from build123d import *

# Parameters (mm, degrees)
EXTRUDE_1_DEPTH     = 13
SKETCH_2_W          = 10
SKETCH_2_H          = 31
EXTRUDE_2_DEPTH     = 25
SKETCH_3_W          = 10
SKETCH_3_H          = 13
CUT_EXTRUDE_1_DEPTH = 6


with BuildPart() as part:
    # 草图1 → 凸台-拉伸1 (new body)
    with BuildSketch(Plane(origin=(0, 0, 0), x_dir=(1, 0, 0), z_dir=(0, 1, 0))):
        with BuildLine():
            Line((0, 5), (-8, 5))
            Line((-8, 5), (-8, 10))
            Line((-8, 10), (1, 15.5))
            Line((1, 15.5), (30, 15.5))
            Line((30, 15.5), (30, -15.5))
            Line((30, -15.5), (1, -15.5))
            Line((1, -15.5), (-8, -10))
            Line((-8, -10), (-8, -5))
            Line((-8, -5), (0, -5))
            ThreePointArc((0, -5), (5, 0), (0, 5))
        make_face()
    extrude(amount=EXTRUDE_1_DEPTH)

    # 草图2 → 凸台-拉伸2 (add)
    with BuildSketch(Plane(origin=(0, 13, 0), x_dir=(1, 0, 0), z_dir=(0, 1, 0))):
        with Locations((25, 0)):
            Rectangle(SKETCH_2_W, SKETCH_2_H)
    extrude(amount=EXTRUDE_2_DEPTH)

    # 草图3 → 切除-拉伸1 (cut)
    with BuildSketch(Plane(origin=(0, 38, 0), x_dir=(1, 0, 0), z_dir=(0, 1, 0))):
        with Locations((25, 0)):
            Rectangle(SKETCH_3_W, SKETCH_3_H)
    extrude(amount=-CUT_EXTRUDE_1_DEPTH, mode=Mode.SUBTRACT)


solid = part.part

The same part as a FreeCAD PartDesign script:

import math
import FreeCAD as App
import Part
import Sketcher
Q = App.Units.Quantity

doc = App.newDocument("Part")
body = doc.addObject("PartDesign::Body", "Body")

sketch1 = body.newObject("Sketcher::SketchObject", "Sketch")
sketch1.AttachmentSupport = (doc.getObject("XZ_Plane"), [""])
sketch1.MapMode = "FlatFace"
sketch1.addGeometry([
    Part.LineSegment(App.Vector(-8, -5, 0), App.Vector(0, -5, 0)),
    Part.ArcOfCircle(Part.Circle(App.Vector(0, 0, 0), App.Vector(0, 0, 1), 5), math.radians(-90), math.radians(90)),
    Part.LineSegment(App.Vector(0, 5, 0), App.Vector(-8, 5, 0)),
    Part.LineSegment(App.Vector(-8, 5, 0), App.Vector(-8, 10, 0)),
    Part.LineSegment(App.Vector(-8, 10, 0), App.Vector(1, 15.5, 0)),
    Part.LineSegment(App.Vector(1, 15.5, 0), App.Vector(30, 15.5, 0)),
    Part.LineSegment(App.Vector(30, 15.5, 0), App.Vector(30, -15.5, 0)),
    Part.LineSegment(App.Vector(30, -15.5, 0), App.Vector(1, -15.5, 0)),
    Part.LineSegment(App.Vector(1, -15.5, 0), App.Vector(-8, -10, 0)),
    Part.LineSegment(App.Vector(-8, -10, 0), App.Vector(-8, -5, 0)),
], False)
sketch1.addConstraint([
    Sketcher.Constraint("Tangent", 0, 2, 1, 1),
    Sketcher.Constraint("Tangent", 1, 2, 2, 1),
    Sketcher.Constraint("Coincident", 2, 2, 3, 1),
    Sketcher.Constraint("Coincident", 3, 2, 4, 1),
    Sketcher.Constraint("Coincident", 4, 2, 5, 1),
    Sketcher.Constraint("Coincident", 5, 2, 6, 1),
    Sketcher.Constraint("Coincident", 6, 2, 7, 1),
    Sketcher.Constraint("Coincident", 7, 2, 8, 1),
    Sketcher.Constraint("Coincident", 8, 2, 9, 1),
    Sketcher.Constraint("Coincident", 9, 2, 0, 1),
    Sketcher.Constraint("Horizontal", 0),
    Sketcher.Constraint("Horizontal", 2),
    Sketcher.Constraint("Vertical", 3),
    Sketcher.Constraint("Horizontal", 5),
    Sketcher.Constraint("Vertical", 6),
    Sketcher.Constraint("Horizontal", 7),
    Sketcher.Constraint("Vertical", 9),
    Sketcher.Constraint("Coincident", 1, 3, -1, 1),
    Sketcher.Constraint("Symmetric", 4, 2, 7, 2, -1),
    Sketcher.Constraint("Symmetric", 3, 2, 8, 2, -1),
    Sketcher.Constraint("Radius", 1, Q("5 mm")),
    Sketcher.Constraint("DistanceX", 0, 1, 0, 2, Q("8 mm")),
    Sketcher.Constraint("DistanceX", 5, 1, 5, 2, Q("29 mm")),
    Sketcher.Constraint("DistanceY", 3, 1, 3, 2, Q("5 mm")),
    Sketcher.Constraint("DistanceY", 6, 2, 6, 1, Q("31 mm")),
    Sketcher.Constraint("DistanceX", -1, 1, 4, 2, Q("1 mm")),
])
pad1 = body.newObject("PartDesign::Pad", "Pad")
pad1.Profile = sketch1
pad1.Length = 13
pad1.Reversed = True

sketch2 = body.newObject("Sketcher::SketchObject", "Sketch001")
sketch2.AttachmentSupport = (doc.getObject("XZ_Plane"), [""])
sketch2.MapMode = "FlatFace"
sketch2.AttachmentOffset = App.Placement(App.Vector(0, 0, -13), App.Rotation())
sketch2.addGeometry([
    Part.LineSegment(App.Vector(20, -15.5, 0), App.Vector(20, 15.5, 0)),
    Part.LineSegment(App.Vector(20, 15.5, 0), App.Vector(30, 15.5, 0)),
    Part.LineSegment(App.Vector(30, 15.5, 0), App.Vector(30, -15.5, 0)),
    Part.LineSegment(App.Vector(30, -15.5, 0), App.Vector(20, -15.5, 0)),
], False)
sketch2.addConstraint([
    Sketcher.Constraint("Coincident", 0, 2, 1, 1),
    Sketcher.Constraint("Coincident", 1, 2, 2, 1),
    Sketcher.Constraint("Coincident", 2, 2, 3, 1),
    Sketcher.Constraint("Coincident", 3, 2, 0, 1),
    Sketcher.Constraint("Vertical", 0),
    Sketcher.Constraint("Horizontal", 1),
    Sketcher.Constraint("Vertical", 2),
    Sketcher.Constraint("Horizontal", 3),
    Sketcher.Constraint("DistanceX", 1, 1, 1, 2, Q("10 mm")),
    Sketcher.Constraint("DistanceY", 0, 1, 0, 2, Q("31 mm")),
    Sketcher.Constraint("DistanceX", -1, 1, 0, 2, Q("20 mm")),
    Sketcher.Constraint("DistanceY", -1, 1, 0, 2, Q("15.5 mm")),
])
pad2 = body.newObject("PartDesign::Pad", "Pad001")
pad2.Profile = sketch2
pad2.Length = 25
pad2.Reversed = True

sketch3 = body.newObject("Sketcher::SketchObject", "Sketch002")
sketch3.AttachmentSupport = (doc.getObject("XZ_Plane"), [""])
sketch3.MapMode = "FlatFace"
sketch3.AttachmentOffset = App.Placement(App.Vector(0, 0, -38), App.Rotation())
sketch3.addGeometry([
    Part.LineSegment(App.Vector(20, -6.5, 0), App.Vector(20, 6.5, 0)),
    Part.LineSegment(App.Vector(20, 6.5, 0), App.Vector(30, 6.5, 0)),
    Part.LineSegment(App.Vector(30, 6.5, 0), App.Vector(30, -6.5, 0)),
    Part.LineSegment(App.Vector(30, -6.5, 0), App.Vector(20, -6.5, 0)),
], False)
sketch3.addConstraint([
    Sketcher.Constraint("Coincident", 0, 2, 1, 1),
    Sketcher.Constraint("Coincident", 1, 2, 2, 1),
    Sketcher.Constraint("Coincident", 2, 2, 3, 1),
    Sketcher.Constraint("Coincident", 3, 2, 0, 1),
    Sketcher.Constraint("Vertical", 0),
    Sketcher.Constraint("Horizontal", 1),
    Sketcher.Constraint("Vertical", 2),
    Sketcher.Constraint("Horizontal", 3),
    Sketcher.Constraint("DistanceX", 1, 1, 1, 2, Q("10 mm")),
    Sketcher.Constraint("DistanceY", 0, 1, 0, 2, Q("13 mm")),
    Sketcher.Constraint("DistanceX", -1, 1, 0, 2, Q("20 mm")),
    Sketcher.Constraint("DistanceY", -1, 1, 0, 2, Q("6.5 mm")),
])
pocket1 = body.newObject("PartDesign::Pocket", "Pocket")
pocket1.Profile = sketch3
pocket1.Length = 6
pocket1.Reversed = True

doc.recompute()
